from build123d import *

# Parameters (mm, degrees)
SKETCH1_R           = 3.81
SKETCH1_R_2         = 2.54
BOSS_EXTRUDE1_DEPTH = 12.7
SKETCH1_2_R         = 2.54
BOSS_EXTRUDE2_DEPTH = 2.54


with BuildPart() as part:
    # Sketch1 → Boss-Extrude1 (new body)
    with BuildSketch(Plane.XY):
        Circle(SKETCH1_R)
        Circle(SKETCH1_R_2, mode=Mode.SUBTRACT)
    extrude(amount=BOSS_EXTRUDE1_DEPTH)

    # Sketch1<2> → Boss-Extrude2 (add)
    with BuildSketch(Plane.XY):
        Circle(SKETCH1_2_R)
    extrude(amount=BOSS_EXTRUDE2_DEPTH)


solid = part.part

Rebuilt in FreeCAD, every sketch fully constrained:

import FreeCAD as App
import Part
import Sketcher
Q = App.Units.Quantity

doc = App.newDocument("Part")
body = doc.addObject("PartDesign::Body", "Body")

sketch1 = body.newObject("Sketcher::SketchObject", "Sketch")
sketch1.AttachmentSupport = (doc.getObject("XY_Plane"), [""])
sketch1.MapMode = "FlatFace"
sketch1.addGeometry(Part.Circle(App.Vector(0, 0, 0), App.Vector(0, 0, 1), 3.81), False)
sketch1.addGeometry(Part.Circle(App.Vector(0, 0, 0), App.Vector(0, 0, 1), 2.54), False)
sketch1.addConstraint(Sketcher.Constraint("Coincident", 0, 3, -1, 1))
sketch1.addConstraint(Sketcher.Constraint("Coincident", 1, 3, -1, 1))
sketch1.addConstraint(Sketcher.Constraint("Diameter", 0, Q("0.3 in")))
sketch1.addConstraint(Sketcher.Constraint("Diameter", 1, Q("0.2 in")))
pad1 = body.newObject("PartDesign::Pad", "Pad")
pad1.Profile = sketch1
pad1.Length = Q("0.5 in")

sketch2 = body.newObject("Sketcher::SketchObject", "Sketch001")
sketch2.AttachmentSupport = (doc.getObject("XY_Plane"), [""])
sketch2.MapMode = "FlatFace"
sketch2.addGeometry(Part.Circle(App.Vector(0, 0, 0), App.Vector(0, 0, 1), 2.54), False)
sketch2.addConstraint(Sketcher.Constraint("Coincident", 0, 3, -1, 1))
sketch2.addConstraint(Sketcher.Constraint("Diameter", 0, Q("0.2 in")))
pad2 = body.newObject("PartDesign::Pad", "Pad001")
pad2.Profile = sketch2
pad2.Length = Q("0.1 in")

doc.recompute()
